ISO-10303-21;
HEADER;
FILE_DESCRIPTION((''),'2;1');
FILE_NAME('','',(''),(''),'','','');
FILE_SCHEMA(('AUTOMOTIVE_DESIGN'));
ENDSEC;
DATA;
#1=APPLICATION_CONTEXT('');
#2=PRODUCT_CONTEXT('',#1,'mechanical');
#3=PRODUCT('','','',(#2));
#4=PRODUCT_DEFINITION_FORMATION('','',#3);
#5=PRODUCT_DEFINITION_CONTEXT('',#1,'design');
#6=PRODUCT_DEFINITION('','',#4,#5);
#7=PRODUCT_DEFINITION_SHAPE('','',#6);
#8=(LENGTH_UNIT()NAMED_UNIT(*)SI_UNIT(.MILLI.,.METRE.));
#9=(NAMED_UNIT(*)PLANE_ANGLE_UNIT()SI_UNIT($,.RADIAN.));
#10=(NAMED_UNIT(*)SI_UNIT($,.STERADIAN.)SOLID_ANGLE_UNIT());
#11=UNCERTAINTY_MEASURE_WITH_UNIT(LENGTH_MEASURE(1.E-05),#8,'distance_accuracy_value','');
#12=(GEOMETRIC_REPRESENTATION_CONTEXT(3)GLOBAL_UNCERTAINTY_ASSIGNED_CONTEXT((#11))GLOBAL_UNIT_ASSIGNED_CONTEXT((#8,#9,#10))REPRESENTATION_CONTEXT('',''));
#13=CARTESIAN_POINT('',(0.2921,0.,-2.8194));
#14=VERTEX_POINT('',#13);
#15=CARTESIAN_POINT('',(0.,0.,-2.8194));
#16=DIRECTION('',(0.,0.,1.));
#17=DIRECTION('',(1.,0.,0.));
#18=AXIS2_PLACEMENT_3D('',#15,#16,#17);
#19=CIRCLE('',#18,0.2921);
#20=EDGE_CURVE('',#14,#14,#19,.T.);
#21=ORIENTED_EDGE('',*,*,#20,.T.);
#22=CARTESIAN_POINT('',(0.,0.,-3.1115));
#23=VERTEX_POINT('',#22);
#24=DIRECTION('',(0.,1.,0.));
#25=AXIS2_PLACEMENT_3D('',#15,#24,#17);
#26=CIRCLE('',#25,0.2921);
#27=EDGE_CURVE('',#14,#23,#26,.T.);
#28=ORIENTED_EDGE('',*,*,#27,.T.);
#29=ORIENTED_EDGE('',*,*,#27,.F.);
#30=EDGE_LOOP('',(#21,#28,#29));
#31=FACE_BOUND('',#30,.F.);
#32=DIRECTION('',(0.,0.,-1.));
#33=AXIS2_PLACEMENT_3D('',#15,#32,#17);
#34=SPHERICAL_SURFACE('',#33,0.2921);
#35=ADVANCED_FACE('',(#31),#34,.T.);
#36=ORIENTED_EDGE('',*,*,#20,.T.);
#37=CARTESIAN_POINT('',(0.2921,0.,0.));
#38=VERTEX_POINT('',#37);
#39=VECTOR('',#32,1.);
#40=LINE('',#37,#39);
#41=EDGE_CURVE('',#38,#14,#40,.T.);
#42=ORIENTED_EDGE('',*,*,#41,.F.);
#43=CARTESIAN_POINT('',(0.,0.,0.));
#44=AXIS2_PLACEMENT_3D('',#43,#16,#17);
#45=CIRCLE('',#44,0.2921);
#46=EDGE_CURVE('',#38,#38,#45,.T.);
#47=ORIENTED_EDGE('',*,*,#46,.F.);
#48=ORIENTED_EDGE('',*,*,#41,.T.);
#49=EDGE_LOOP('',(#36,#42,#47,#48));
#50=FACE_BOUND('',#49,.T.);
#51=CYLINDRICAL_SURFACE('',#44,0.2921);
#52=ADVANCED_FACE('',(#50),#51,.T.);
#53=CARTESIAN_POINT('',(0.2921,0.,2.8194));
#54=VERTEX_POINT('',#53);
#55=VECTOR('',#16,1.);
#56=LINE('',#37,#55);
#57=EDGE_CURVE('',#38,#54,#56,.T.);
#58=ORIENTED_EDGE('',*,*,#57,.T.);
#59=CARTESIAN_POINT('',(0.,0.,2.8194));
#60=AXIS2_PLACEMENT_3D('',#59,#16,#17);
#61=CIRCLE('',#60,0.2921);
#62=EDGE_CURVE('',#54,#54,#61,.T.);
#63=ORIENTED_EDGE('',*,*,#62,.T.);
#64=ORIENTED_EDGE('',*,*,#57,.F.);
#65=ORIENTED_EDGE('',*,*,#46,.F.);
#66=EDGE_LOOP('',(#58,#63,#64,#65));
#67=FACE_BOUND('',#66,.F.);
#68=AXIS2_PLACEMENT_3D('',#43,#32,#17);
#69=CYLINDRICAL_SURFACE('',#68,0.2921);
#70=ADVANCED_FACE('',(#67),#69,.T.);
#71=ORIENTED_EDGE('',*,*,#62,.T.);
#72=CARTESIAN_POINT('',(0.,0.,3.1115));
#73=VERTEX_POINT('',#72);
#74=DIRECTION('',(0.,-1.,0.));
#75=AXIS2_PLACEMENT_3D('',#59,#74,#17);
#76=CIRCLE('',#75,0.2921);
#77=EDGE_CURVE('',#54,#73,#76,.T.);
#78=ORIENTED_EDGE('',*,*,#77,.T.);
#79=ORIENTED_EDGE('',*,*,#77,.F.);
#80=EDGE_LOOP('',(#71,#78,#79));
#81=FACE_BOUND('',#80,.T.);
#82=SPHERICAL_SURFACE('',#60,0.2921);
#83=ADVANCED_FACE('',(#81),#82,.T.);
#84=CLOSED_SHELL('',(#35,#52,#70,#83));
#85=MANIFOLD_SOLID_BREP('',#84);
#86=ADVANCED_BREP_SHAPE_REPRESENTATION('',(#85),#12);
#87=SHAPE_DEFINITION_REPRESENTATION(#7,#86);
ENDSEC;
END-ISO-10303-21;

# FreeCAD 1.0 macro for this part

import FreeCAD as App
import Part
import Sketcher
from FreeCAD import Vector
Q = App.Units.Quantity


def edges_at(feature, points):
    """Names of the edges that pass closest to the given points."""
    edges = feature.Shape.Edges
    near = lambda p: min(range(len(edges)), key=lambda i: edges[i].distToShape(Part.Vertex(*p))[0])
    return sorted({f"Edge{near(p) + 1}" for p in points})

doc = App.newDocument("Part")
body = doc.addObject("PartDesign::Body", "Body")

# Sketch on XY plane
sketch1 = doc.addObject("Sketcher::SketchObject", "Sketch")
body.addObject(sketch1)
sketch1.AttachmentSupport = (doc.XY_Plane, [""])
sketch1.MapMode = "FlatFace"
sketch1.addGeometry(Part.Circle(Vector(0, 0, 0), Vector(0, 0, 1), 0.29), False)
sketch1.addConstraint(Sketcher.Constraint("Coincident", 0, 3, -1, 1))
sketch1.addConstraint(Sketcher.Constraint("Diameter", 0, Q("0.023 in")))
pad1 = doc.addObject("PartDesign::Pad", "Pad")
body.addObject(pad1)
pad1.Profile = sketch1
pad1.Length = Q("0.245 in")
pad1.Midplane = True
doc.recompute()

fillet = doc.addObject("PartDesign::Fillet", "Fillet")
body.addObject(fillet)
fillet.Base = (pad1, edges_at(pad1, [(-0.292, 0, 3.111), (-0.292, 0, -3.111)]))
fillet.Radius = Q("0.0115 in")

doc.recompute()
